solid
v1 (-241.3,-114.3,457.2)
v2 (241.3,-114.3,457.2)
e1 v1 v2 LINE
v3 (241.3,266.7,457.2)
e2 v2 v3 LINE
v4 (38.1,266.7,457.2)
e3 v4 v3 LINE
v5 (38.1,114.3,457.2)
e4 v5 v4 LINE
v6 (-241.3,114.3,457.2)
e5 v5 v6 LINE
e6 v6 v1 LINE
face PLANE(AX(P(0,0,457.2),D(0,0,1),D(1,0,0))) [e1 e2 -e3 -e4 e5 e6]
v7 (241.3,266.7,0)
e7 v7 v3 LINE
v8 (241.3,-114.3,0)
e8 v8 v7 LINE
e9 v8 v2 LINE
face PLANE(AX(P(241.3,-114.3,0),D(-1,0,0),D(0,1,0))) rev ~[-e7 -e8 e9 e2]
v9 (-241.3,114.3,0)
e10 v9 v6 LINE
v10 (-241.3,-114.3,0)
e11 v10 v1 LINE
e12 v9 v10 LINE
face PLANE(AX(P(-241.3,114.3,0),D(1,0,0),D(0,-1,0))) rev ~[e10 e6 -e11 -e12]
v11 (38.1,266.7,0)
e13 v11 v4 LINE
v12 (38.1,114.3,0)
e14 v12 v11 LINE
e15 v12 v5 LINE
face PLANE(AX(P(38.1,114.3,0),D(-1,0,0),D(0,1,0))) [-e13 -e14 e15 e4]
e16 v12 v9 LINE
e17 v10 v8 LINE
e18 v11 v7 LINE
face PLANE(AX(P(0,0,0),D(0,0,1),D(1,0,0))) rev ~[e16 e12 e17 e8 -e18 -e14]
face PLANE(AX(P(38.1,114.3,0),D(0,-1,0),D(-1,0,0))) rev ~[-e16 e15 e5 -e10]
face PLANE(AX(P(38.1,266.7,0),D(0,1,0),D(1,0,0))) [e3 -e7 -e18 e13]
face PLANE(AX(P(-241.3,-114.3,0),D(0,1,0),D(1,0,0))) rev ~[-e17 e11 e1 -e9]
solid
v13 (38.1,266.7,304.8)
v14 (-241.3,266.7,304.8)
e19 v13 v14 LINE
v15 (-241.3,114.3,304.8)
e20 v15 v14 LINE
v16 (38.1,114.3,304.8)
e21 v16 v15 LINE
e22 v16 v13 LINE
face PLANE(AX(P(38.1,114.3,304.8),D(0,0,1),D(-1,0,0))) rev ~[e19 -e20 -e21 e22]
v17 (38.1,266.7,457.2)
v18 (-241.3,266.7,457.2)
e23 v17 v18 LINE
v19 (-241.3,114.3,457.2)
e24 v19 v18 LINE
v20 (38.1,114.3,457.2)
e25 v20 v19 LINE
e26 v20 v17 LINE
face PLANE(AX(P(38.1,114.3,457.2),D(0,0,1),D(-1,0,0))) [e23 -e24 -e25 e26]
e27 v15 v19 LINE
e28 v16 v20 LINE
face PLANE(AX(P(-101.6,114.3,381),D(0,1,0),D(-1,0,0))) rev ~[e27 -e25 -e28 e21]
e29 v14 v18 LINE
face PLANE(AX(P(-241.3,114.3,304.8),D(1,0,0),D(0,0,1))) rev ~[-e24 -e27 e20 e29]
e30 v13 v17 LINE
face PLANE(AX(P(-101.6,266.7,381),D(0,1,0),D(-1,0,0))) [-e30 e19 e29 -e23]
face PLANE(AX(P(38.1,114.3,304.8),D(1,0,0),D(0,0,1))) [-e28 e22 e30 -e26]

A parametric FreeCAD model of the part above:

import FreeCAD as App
import Part
import Sketcher
from FreeCAD import Vector
Q = App.Units.Quantity

doc = App.newDocument("Part")
body = doc.addObject("PartDesign::Body", "Body")

sketch1 = doc.addObject("Sketcher::SketchObject", "Sketch")
body.addObject(sketch1)
sketch1.AttachmentSupport = (doc.XY_Plane, [""])
sketch1.MapMode = "FlatFace"
sketch1.addGeometry([
    Part.LineSegment(Vector(-241, 114, 0), Vector(-241, -114, 0)),
    Part.LineSegment(Vector(-241, -114, 0), Vector(241, -114, 0)),
    Part.LineSegment(Vector(241, -114, 0), Vector(241, 267, 0)),
    Part.LineSegment(Vector(241, 267, 0), Vector(38, 267, 0)),
    Part.LineSegment(Vector(38, 267, 0), Vector(38, 114, 0)),
    Part.LineSegment(Vector(38, 114, 0), Vector(-241, 114, 0)),
], False)
sketch1.addConstraint([
    Sketcher.Constraint("Coincident", 0, 2, 1, 1),
    Sketcher.Constraint("Coincident", 1, 2, 2, 1),
    Sketcher.Constraint("Coincident", 2, 2, 3, 1),
    Sketcher.Constraint("Coincident", 3, 2, 4, 1),
    Sketcher.Constraint("Coincident", 4, 2, 5, 1),
    Sketcher.Constraint("Coincident", 5, 2, 0, 1),
    Sketcher.Constraint("Vertical", 0),
    Sketcher.Constraint("Horizontal", 1),
    Sketcher.Constraint("Vertical", 2),
    Sketcher.Constraint("Horizontal", 3),
    Sketcher.Constraint("Vertical", 4),
    Sketcher.Constraint("Horizontal", 5),
    Sketcher.Constraint("Symmetric", 1, 2, 5, 2, -1, 1),
    Sketcher.Constraint("DistanceX", 1, 1, 1, 2, Q("19 in")),
    Sketcher.Constraint("DistanceX", 3, 2, 3, 1, Q("8 in")),
    Sketcher.Constraint("DistanceY", 0, 2, 0, 1, Q("9 in")),
    Sketcher.Constraint("DistanceY", 2, 1, 2, 2, Q("15 in")),
])
pad1 = doc.addObject("PartDesign::Pad", "Pad")
body.addObject(pad1)
pad1.Profile = sketch1
pad1.Length = Q("18 in")
body2 = doc.addObject("PartDesign::Body", "Body001")

sketch2 = doc.addObject("Sketcher::SketchObject", "Sketch001")
body2.addObject(sketch2)
sketch2.AttachmentSupport = (doc.getObject("XZ_Plane001"), [""])
sketch2.MapMode = "FlatFace"
sketch2.AttachmentOffset = App.Placement(Vector(0, 0, -4.5 * 25.4), App.Rotation())
sketch2.addGeometry([
    Part.LineSegment(Vector(38, 457, 0), Vector(38, 305, 0)),
    Part.LineSegment(Vector(38, 305, 0), Vector(-241, 305, 0)),
    Part.LineSegment(Vector(-241, 305, 0), Vector(-241, 457, 0)),
    Part.LineSegment(Vector(-241, 457, 0), Vector(38, 457, 0)),
], False)
sketch2.addConstraint([
    Sketcher.Constraint("Coincident", 0, 2, 1, 1),
    Sketcher.Constraint("Coincident", 1, 2, 2, 1),
    Sketcher.Constraint("Coincident", 2, 2, 3, 1),
    Sketcher.Constraint("Coincident", 3, 2, 0, 1),
    Sketcher.Constraint("Vertical", 0),
    Sketcher.Constraint("Horizontal", 1),
    Sketcher.Constraint("Vertical", 2),
    Sketcher.Constraint("Horizontal", 3),
    Sketcher.Constraint("DistanceX", 1, 2, 1, 1, Q("11 in")),
    Sketcher.Constraint("DistanceY", 0, 2, 0, 1, Q("6 in")),
    Sketcher.Constraint("DistanceY", -1, 1, 0, 2, Q("12 in")),
    Sketcher.Constraint("DistanceX", -1, 1, 0, 2, Q("1.5 in")),
])
pad2 = doc.addObject("PartDesign::Pad", "Pad001")
body2.addObject(pad2)
pad2.Profile = sketch2
pad2.Length = Q("6 in")
pad2.Reversed = True

doc.recompute()
